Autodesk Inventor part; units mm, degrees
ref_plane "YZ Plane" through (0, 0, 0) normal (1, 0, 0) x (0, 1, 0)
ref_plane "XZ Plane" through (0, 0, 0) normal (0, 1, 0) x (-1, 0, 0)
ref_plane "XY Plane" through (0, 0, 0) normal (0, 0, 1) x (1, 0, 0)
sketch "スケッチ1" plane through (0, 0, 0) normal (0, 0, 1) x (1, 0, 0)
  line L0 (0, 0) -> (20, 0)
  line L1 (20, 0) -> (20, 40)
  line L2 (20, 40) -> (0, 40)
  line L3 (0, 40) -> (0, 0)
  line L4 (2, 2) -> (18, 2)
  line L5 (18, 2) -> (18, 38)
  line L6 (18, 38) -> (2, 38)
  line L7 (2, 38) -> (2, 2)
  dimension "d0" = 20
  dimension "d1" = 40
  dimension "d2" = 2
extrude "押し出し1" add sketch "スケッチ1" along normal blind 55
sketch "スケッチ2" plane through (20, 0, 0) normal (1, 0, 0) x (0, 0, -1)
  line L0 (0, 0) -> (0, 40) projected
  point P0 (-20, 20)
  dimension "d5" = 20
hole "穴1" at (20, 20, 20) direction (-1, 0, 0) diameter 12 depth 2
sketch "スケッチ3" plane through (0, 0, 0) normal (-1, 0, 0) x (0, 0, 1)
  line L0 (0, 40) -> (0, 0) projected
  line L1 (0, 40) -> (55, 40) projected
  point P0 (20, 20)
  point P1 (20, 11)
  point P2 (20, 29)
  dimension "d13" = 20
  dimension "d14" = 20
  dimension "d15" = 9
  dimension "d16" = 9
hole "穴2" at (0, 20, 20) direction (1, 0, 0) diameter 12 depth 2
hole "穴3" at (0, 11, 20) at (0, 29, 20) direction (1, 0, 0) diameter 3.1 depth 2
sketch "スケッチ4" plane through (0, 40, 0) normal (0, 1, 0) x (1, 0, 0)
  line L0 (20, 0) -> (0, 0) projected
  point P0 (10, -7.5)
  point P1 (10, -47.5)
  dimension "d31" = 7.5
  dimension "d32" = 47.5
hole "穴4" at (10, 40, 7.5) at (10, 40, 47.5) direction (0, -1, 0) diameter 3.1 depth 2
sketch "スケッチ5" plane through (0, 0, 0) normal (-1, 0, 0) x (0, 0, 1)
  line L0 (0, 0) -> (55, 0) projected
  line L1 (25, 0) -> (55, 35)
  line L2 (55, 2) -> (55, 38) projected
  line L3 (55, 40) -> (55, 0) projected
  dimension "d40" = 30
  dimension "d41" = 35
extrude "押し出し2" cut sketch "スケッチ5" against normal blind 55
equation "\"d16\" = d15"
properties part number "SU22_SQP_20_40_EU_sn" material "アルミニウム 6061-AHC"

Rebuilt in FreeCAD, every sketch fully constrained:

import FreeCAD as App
import Part
import Sketcher
from FreeCAD import Vector


def add_polygon(sketch, points):
    """Adds a closed chain of lines whose ends are joined by coincident constraints."""
    first, n = sketch.GeometryCount, len(points)
    for a, b in zip(points, points[1:] + points[:1]):
        sketch.addGeometry(Part.LineSegment(App.Vector(*a, 0), App.Vector(*b, 0)), False)
    for i in range(n):
        sketch.addConstraint(Sketcher.Constraint("Coincident", first + i, 2, first + (i + 1) % n, 1))

doc = App.newDocument("Part")
body = doc.addObject("PartDesign::Body", "Body")

sketch1 = body.newObject("Sketcher::SketchObject", "Sketch")
sketch1.AttachmentSupport = (doc.getObject("XY_Plane"), [""])
sketch1.MapMode = "FlatFace"
add_polygon(sketch1, [(0, 40), (0, 0), (20, 0), (20, 40)])
add_polygon(sketch1, [(18, 2), (2, 2), (2, 38), (18, 38)])
sketch1.addConstraint([
    Sketcher.Constraint("Vertical", 0),
    Sketcher.Constraint("Horizontal", 1),
    Sketcher.Constraint("Vertical", 2),
    Sketcher.Constraint("Horizontal", 3),
    Sketcher.Constraint("Horizontal", 4),
    Sketcher.Constraint("Vertical", 5),
    Sketcher.Constraint("Horizontal", 6),
    Sketcher.Constraint("Vertical", 7),
    Sketcher.Constraint("Coincident", 0, 2, -1, 1),
    Sketcher.Constraint("DistanceX", 1, 1, 1, 2, 20.0),
    Sketcher.Constraint("DistanceY", 0, 2, 0, 1, 40.0),
    Sketcher.Constraint("DistanceX", -1, 1, 4, 2, 2.0),
    Sketcher.Constraint("DistanceY", -1, 1, 4, 2, 2.0),
    Sketcher.Constraint("DistanceY", 5, 2, 3, 2, 2.0),
    Sketcher.Constraint("DistanceX", 6, 2, 2, 2, 2.0),
])
pad1 = body.newObject("PartDesign::Pad", "Pad")
pad1.Profile = sketch1
pad1.Length = 55

sketch2 = body.newObject("Sketcher::SketchObject", "Sketch001")
sketch2.AttachmentSupport = (doc.getObject("YZ_Plane"), [""])
sketch2.MapMode = "FlatFace"
sketch2.AttachmentOffset = App.Placement(Vector(0, 0, 20), App.Rotation())
sketch2.addGeometry(Part.Circle(Vector(20, 20, 0), Vector(0, 0, 1), 6), False)
sketch2.addConstraint([
    Sketcher.Constraint("Diameter", 0, 12.0),
    Sketcher.Constraint("DistanceX", -1, 1, 0, 3, 20.0),
    Sketcher.Constraint("DistanceY", -1, 1, 0, 3, 20.0),
])
doc.recompute()
hole = body.newObject("PartDesign::Hole", "Hole")
hole.Profile = sketch2
hole.ThreadType = "None"
hole.Diameter = 12
hole.DepthType = "Dimension"
hole.Depth = 2
hole.DrillPoint = "Flat"

sketch3 = body.newObject("Sketcher::SketchObject", "Sketch002")
sketch3.AttachmentSupport = (doc.getObject("YZ_Plane"), [""])
sketch3.MapMode = "FlatFace"
sketch3.addGeometry(Part.Circle(Vector(20, 20, 0), Vector(0, 0, 1), 6), False)
sketch3.addConstraint([
    Sketcher.Constraint("Diameter", 0, 12.0),
    Sketcher.Constraint("DistanceX", -1, 1, 0, 3, 20.0),
    Sketcher.Constraint("DistanceY", -1, 1, 0, 3, 20.0),
])
doc.recompute()
hole2 = body.newObject("PartDesign::Hole", "Hole001")
hole2.Profile = sketch3
hole2.ThreadType = "None"
hole2.Diameter = 12
hole2.DepthType = "Dimension"
hole2.Depth = 2
hole2.DrillPoint = "Flat"
hole2.Reversed = True

sketch4 = body.newObject("Sketcher::SketchObject", "Sketch003")
sketch4.AttachmentSupport = (doc.getObject("YZ_Plane"), [""])
sketch4.MapMode = "FlatFace"
sketch4.addGeometry([
    Part.Circle(Vector(11, 20, 0), Vector(0, 0, 1), 1.6),
    Part.Circle(Vector(29, 20, 0), Vector(0, 0, 1), 1.6),
], False)
sketch4.addConstraint([
    Sketcher.Constraint("Equal", 0, 1),
    Sketcher.Constraint("Horizontal", 0, 3, 1, 3),
    Sketcher.Constraint("Diameter", 0, 3.1),
    Sketcher.Constraint("DistanceX", -1, 1, 0, 3, 11.0),
    Sketcher.Constraint("DistanceY", -1, 1, 0, 3, 20.0),
    Sketcher.Constraint("DistanceX", -1, 1, 1, 3, 29.0),
])
doc.recompute()
hole3 = body.newObject("PartDesign::Hole", "Hole002")
hole3.Profile = sketch4
hole3.ThreadType = "None"
hole3.Diameter = 3.1
hole3.DepthType = "Dimension"
hole3.Depth = 2
hole3.DrillPoint = "Flat"
hole3.Reversed = True

sketch5 = body.newObject("Sketcher::SketchObject", "Sketch004")
sketch5.AttachmentSupport = (doc.getObject("XZ_Plane"), [""])
sketch5.MapMode = "FlatFace"
sketch5.AttachmentOffset = App.Placement(Vector(0, 0, -40), App.Rotation())
sketch5.addGeometry([
    Part.Circle(Vector(10, 7.5, 0), Vector(0, 0, 1), 1.6),
    Part.Circle(Vector(10, 47.5, 0), Vector(0, 0, 1), 1.6),
], False)
sketch5.addConstraint([
    Sketcher.Constraint("Equal", 0, 1),
    Sketcher.Constraint("Vertical", 0, 3, 1, 3),
    Sketcher.Constraint("Diameter", 0, 3.1),
    Sketcher.Constraint("DistanceX", -1, 1, 0, 3, 10.0),
    Sketcher.Constraint("DistanceY", 0, 3, 1, 3, 40.0),
    Sketcher.Constraint("DistanceY", -1, 1, 0, 3, 7.5),
])
doc.recompute()
hole4 = body.newObject("PartDesign::Hole", "Hole003")
hole4.Profile = sketch5
hole4.ThreadType = "None"
hole4.Diameter = 3.1
hole4.DepthType = "Dimension"
hole4.Depth = 2
hole4.DrillPoint = "Flat"
hole4.Reversed = True

sketch6 = body.newObject("Sketcher::SketchObject", "Sketch005")
sketch6.AttachmentSupport = (doc.getObject("YZ_Plane"), [""])
sketch6.MapMode = "FlatFace"
add_polygon(sketch6, [(35, 55), (0, 25), (0, 55)])
sketch6.addConstraint([
    Sketcher.Constraint("Vertical", 1),
    Sketcher.Constraint("Horizontal", 2),
    Sketcher.Constraint("PointOnObject", 0, 2, -2),
    Sketcher.Constraint("DistanceX", 2, 1, 2, 2, 35.0),
    Sketcher.Constraint("DistanceY", 1, 1, 1, 2, 30.0),
    Sketcher.Constraint("DistanceY", -1, 1, 0, 2, 25.0),
])
pocket1 = body.newObject("PartDesign::Pocket", "Pocket")
pocket1.Profile = sketch6
pocket1.Length = 55
pocket1.Reversed = True

doc.recompute()
